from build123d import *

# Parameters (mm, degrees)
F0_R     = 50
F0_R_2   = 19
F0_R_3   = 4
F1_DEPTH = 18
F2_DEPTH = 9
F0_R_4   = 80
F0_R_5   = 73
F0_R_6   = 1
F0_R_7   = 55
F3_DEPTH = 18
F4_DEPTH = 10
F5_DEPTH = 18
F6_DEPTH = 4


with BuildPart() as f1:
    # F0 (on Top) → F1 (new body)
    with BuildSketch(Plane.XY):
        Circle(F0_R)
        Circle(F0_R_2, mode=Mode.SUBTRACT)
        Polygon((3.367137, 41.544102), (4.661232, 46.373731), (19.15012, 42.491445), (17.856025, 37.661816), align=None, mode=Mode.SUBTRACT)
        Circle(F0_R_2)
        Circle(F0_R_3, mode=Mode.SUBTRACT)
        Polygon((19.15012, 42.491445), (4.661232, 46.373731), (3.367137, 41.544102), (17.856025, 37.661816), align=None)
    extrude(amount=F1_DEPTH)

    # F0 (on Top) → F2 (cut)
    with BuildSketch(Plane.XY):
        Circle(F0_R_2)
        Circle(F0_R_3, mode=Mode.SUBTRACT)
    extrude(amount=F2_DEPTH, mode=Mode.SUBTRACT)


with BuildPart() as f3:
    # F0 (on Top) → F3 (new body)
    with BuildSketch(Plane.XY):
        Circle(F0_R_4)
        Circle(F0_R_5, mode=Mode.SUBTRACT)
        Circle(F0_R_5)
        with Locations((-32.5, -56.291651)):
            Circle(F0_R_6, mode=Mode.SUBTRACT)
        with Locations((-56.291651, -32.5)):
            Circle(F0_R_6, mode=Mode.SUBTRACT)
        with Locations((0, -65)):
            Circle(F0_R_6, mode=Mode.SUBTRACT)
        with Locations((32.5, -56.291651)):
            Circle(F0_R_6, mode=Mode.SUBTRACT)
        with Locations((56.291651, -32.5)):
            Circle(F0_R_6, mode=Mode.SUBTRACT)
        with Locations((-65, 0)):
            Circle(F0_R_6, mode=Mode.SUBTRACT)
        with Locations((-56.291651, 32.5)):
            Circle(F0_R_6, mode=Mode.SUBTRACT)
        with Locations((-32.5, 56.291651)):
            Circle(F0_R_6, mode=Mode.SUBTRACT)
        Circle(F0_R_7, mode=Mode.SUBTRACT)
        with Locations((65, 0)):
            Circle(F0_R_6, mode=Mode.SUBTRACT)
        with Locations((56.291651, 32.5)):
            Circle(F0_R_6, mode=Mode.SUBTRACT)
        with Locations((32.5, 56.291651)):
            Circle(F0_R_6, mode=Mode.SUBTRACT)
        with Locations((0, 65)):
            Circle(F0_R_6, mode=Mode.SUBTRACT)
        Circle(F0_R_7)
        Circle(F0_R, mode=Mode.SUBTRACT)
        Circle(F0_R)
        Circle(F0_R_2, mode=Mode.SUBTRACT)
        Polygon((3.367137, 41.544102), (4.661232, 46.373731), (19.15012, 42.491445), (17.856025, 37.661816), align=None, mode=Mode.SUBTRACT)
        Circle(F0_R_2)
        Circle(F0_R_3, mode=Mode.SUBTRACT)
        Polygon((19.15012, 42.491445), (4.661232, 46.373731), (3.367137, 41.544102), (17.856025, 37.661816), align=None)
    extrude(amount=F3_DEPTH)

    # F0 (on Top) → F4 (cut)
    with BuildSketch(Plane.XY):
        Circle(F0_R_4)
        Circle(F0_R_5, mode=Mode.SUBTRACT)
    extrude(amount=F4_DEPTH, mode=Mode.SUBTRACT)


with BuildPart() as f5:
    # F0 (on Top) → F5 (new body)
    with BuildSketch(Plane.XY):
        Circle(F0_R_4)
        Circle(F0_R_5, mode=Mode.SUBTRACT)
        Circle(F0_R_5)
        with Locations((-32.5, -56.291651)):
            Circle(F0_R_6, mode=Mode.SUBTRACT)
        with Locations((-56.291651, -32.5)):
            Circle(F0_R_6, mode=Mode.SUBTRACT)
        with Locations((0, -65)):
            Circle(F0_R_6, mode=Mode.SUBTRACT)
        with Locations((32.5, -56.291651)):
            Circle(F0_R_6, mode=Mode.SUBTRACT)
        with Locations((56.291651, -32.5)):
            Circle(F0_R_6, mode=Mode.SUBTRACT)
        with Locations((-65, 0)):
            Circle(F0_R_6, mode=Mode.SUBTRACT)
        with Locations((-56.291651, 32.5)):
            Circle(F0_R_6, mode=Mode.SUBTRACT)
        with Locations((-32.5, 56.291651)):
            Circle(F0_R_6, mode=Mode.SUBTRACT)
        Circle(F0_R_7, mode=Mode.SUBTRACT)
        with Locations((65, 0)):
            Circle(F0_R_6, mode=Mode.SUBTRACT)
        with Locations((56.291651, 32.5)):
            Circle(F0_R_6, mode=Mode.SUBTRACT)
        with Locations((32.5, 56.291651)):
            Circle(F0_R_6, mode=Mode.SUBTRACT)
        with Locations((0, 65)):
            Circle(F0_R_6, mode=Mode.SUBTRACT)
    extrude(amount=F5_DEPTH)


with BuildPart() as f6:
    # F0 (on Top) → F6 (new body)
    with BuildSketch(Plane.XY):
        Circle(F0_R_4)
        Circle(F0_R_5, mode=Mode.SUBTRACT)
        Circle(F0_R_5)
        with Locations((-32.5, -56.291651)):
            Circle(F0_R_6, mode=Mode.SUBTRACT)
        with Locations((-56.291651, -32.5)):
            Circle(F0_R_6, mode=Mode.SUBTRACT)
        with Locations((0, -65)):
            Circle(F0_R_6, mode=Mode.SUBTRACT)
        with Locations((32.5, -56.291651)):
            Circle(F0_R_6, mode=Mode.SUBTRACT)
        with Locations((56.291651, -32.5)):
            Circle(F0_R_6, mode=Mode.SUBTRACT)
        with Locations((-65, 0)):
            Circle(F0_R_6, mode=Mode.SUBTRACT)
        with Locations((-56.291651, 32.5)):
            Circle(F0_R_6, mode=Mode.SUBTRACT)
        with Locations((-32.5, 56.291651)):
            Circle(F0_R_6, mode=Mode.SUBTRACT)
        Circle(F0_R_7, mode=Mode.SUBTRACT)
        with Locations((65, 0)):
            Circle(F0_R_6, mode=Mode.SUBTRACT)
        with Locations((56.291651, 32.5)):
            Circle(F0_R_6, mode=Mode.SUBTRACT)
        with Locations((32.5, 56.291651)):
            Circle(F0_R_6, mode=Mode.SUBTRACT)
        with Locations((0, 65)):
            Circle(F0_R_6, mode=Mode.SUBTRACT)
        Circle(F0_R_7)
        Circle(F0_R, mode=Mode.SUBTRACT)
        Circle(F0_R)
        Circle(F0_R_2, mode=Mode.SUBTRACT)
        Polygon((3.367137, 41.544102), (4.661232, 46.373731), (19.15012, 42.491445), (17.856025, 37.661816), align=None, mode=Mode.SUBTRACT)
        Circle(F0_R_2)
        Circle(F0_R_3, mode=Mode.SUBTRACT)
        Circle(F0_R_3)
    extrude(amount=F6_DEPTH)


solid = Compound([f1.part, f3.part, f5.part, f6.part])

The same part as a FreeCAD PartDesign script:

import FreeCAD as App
import Part
import Sketcher

V = App.Vector
Q = App.Units.Quantity

doc = App.newDocument("Part")
body = doc.addObject("PartDesign::Body", "Body")

# Sketch on XY plane
sketch1 = body.newObject("Sketcher::SketchObject", "Sketch")
sketch1.AttachmentSupport = (doc.getObject("XY_Plane"), [""])
sketch1.MapMode = "FlatFace"
sketch1.addGeometry([
    Part.Circle(V(0, 0, 0), V(0, 0, 1), 50),
    Part.Circle(V(0, 0, 0), V(0, 0, 1), 4),
], False)
sketch1.addConstraint([
    Sketcher.Constraint("Coincident", 0, 3, -1, 1),
    Sketcher.Constraint("Coincident", 1, 3, -1, 1),
    Sketcher.Constraint("Diameter", 0, 100.0),
    Sketcher.Constraint("Diameter", 1, 8.0),
])
pad1 = body.newObject("PartDesign::Pad", "Pad")
pad1.Profile = sketch1
pad1.Length = 18

# Sketch on XY plane
sketch2 = body.newObject("Sketcher::SketchObject", "Sketch001")
sketch2.AttachmentSupport = (doc.getObject("XY_Plane"), [""])
sketch2.MapMode = "FlatFace"
sketch2.addGeometry([
    Part.Circle(V(0, 0, 0), V(0, 0, 1), 19),
    Part.Circle(V(0, 0, 0), V(0, 0, 1), 4),
], False)
sketch2.addConstraint([
    Sketcher.Constraint("Coincident", 0, 3, -1, 1),
    Sketcher.Constraint("Coincident", 1, 3, -1, 1),
    Sketcher.Constraint("Diameter", 0, 38.0),
    Sketcher.Constraint("Diameter", 1, 8.0),
])
pocket1 = body.newObject("PartDesign::Pocket", "Pocket")
pocket1.Profile = sketch2
pocket1.Length = 9
pocket1.Reversed = True
body2 = doc.addObject("PartDesign::Body", "Body001")

# Sketch on XY plane
sketch3 = body2.newObject("Sketcher::SketchObject", "Sketch002")
sketch3.AttachmentSupport = (doc.getObject("XY_Plane001"), [""])
sketch3.MapMode = "FlatFace"
sketch3.addGeometry([
    Part.Circle(V(0, 0, 0), V(0, 0, 1), 80),  # 0
    Part.Circle(V(-32.5, -56.3, 0), V(0, 0, 1), 1),  # 1
    Part.Circle(V(-56.3, -32.5, 0), V(0, 0, 1), 1),  # 2
    Part.Circle(V(0, -65, 0), V(0, 0, 1), 1),  # 3
    Part.Circle(V(32.5, -56.3, 0), V(0, 0, 1), 1),  # 4
    Part.Circle(V(56.3, -32.5, 0), V(0, 0, 1), 1),  # 5
    Part.Circle(V(-65, 0, 0), V(0, 0, 1), 1),  # 6
    Part.Circle(V(-56.3, 32.5, 0), V(0, 0, 1), 1),  # 7
    Part.Circle(V(-32.5, 56.3, 0), V(0, 0, 1), 1),  # 8
    Part.Circle(V(0, 0, 0), V(0, 0, 1), 4),  # 9
    Part.Circle(V(65, 0, 0), V(0, 0, 1), 1),  # 10
    Part.Circle(V(56.3, 32.5, 0), V(0, 0, 1), 1),  # 11
    Part.Circle(V(0, 65, 0), V(0, 0, 1), 1),  # 12
    Part.Circle(V(32.5, 56.3, 0), V(0, 0, 1), 1),  # 13
], False)
sketch3.addConstraint([
    Sketcher.Constraint("Coincident", 0, 3, -1, 1),
    Sketcher.Constraint("Coincident", 9, 3, -1, 1),
    Sketcher.Constraint("Equal", 1, 2),
    Sketcher.Constraint("Equal", 2, 3),
    Sketcher.Constraint("Equal", 3, 4),
    Sketcher.Constraint("Equal", 4, 5),
    Sketcher.Constraint("Equal", 5, 6),
    Sketcher.Constraint("Equal", 6, 7),
    Sketcher.Constraint("Equal", 7, 8),
    Sketcher.Constraint("Equal", 8, 10),
    Sketcher.Constraint("Equal", 10, 11),
    Sketcher.Constraint("Equal", 11, 12),
    Sketcher.Constraint("Equal", 12, 13),
    Sketcher.Constraint("Symmetric", 5, 3, 7, 3, -1, 1),
    Sketcher.Constraint("Symmetric", 4, 3, 8, 3, -1, 1),
    Sketcher.Constraint("Symmetric", 6, 3, 10, 3, -1, 1),
    Sketcher.Constraint("Symmetric", 2, 3, 11, 3, -1, 1),
    Sketcher.Constraint("Symmetric", 3, 3, 12, 3, -1, 1),
    Sketcher.Constraint("Symmetric", 1, 3, 13, 3, -1, 1),
    Sketcher.Constraint("Symmetric", 1, 3, 4, 3, -2),
    Sketcher.Constraint("Symmetric", 2, 3, 5, 3, -2),
    Sketcher.Constraint("PointOnObject", 3, 3, -2),
    Sketcher.Constraint("PointOnObject", 6, 3, -1),
    Sketcher.Constraint("Diameter", 0, 160.0),
    Sketcher.Constraint("Diameter", 1, 2.0),
    Sketcher.Constraint("Diameter", 9, 8.0),
    Sketcher.Constraint("DistanceY", 3, 3, -1, 1, 65.0),
    Sketcher.Constraint("DistanceX", 6, 3, -1, 1, 65.0),
    Sketcher.Constraint("DistanceX", 1, 3, 4, 3, 65.0),
    Sketcher.Constraint("DistanceY", 2, 3, 7, 3, 65.0),
    Sketcher.Constraint("DistanceY", 1, 3, -1, 1, 56.291651),
    Sketcher.Constraint("DistanceX", 2, 3, -1, 1, 56.291651),
])
pad2 = body2.newObject("PartDesign::Pad", "Pad001")
pad2.Profile = sketch3
pad2.Length = 18

# Sketch on XY plane
sketch4 = body2.newObject("Sketcher::SketchObject", "Sketch003")
sketch4.AttachmentSupport = (doc.getObject("XY_Plane001"), [""])
sketch4.MapMode = "FlatFace"
sketch4.addGeometry([
    Part.Circle(V(0, 0, 0), V(0, 0, 1), 80),
    Part.Circle(V(0, 0, 0), V(0, 0, 1), 73),
], False)
sketch4.addConstraint([
    Sketcher.Constraint("Coincident", 0, 3, -1, 1),
    Sketcher.Constraint("Coincident", 1, 3, -1, 1),
    Sketcher.Constraint("Diameter", 0, 160.0),
    Sketcher.Constraint("Diameter", 1, 146.0),
])
pocket2 = body2.newObject("PartDesign::Pocket", "Pocket001")
pocket2.Profile = sketch4
pocket2.Length = 10
pocket2.Reversed = True
body3 = doc.addObject("PartDesign::Body", "Body002")

# Sketch on XY plane
sketch5 = body3.newObject("Sketcher::SketchObject", "Sketch004")
sketch5.AttachmentSupport = (doc.getObject("XY_Plane002"), [""])
sketch5.MapMode = "FlatFace"
sketch5.addGeometry([
    Part.Circle(V(0, 0, 0), V(0, 0, 1), 80),  # 0
    Part.Circle(V(-32.5, -56.3, 0), V(0, 0, 1), 1),  # 1
    Part.Circle(V(-56.3, -32.5, 0), V(0, 0, 1), 1),  # 2
    Part.Circle(V(0, -65, 0), V(0, 0, 1), 1),  # 3
    Part.Circle(V(32.5, -56.3, 0), V(0, 0, 1), 1),  # 4
    Part.Circle(V(56.3, -32.5, 0), V(0, 0, 1), 1),  # 5
    Part.Circle(V(-65, 0, 0), V(0, 0, 1), 1),  # 6
    Part.Circle(V(-56.3, 32.5, 0), V(0, 0, 1), 1),  # 7
    Part.Circle(V(-32.5, 56.3, 0), V(0, 0, 1), 1),  # 8
    Part.Circle(V(0, 0, 0), V(0, 0, 1), 55),  # 9
    Part.Circle(V(65, 0, 0), V(0, 0, 1), 1),  # 10
    Part.Circle(V(56.3, 32.5, 0), V(0, 0, 1), 1),  # 11
    Part.Circle(V(0, 65, 0), V(0, 0, 1), 1),  # 12
    Part.Circle(V(32.5, 56.3, 0), V(0, 0, 1), 1),  # 13
], False)
sketch5.addConstraint([
    Sketcher.Constraint("Coincident", 0, 3, -1, 1),
    Sketcher.Constraint("Coincident", 9, 3, -1, 1),
    Sketcher.Constraint("Equal", 1, 2),
    Sketcher.Constraint("Equal", 2, 3),
    Sketcher.Constraint("Equal", 3, 4),
    Sketcher.Constraint("Equal", 4, 5),
    Sketcher.Constraint("Equal", 5, 6),
    Sketcher.Constraint("Equal", 6, 7),
    Sketcher.Constraint("Equal", 7, 8),
    Sketcher.Constraint("Equal", 8, 10),
    Sketcher.Constraint("Equal", 10, 11),
    Sketcher.Constraint("Equal", 11, 12),
    Sketcher.Constraint("Equal", 12, 13),
    Sketcher.Constraint("Symmetric", 5, 3, 7, 3, -1, 1),
    Sketcher.Constraint("Symmetric", 4, 3, 8, 3, -1, 1),
    Sketcher.Constraint("Symmetric", 6, 3, 10, 3, -1, 1),
    Sketcher.Constraint("Symmetric", 2, 3, 11, 3, -1, 1),
    Sketcher.Constraint("Symmetric", 3, 3, 12, 3, -1, 1),
    Sketcher.Constraint("Symmetric", 1, 3, 13, 3, -1, 1),
    Sketcher.Constraint("Symmetric", 1, 3, 4, 3, -2),
    Sketcher.Constraint("Symmetric", 2, 3, 5, 3, -2),
    Sketcher.Constraint("PointOnObject", 3, 3, -2),
    Sketcher.Constraint("PointOnObject", 6, 3, -1),
    Sketcher.Constraint("Diameter", 0, 160.0),
    Sketcher.Constraint("Diameter", 1, 2.0),
    Sketcher.Constraint("Diameter", 9, 110.0),
    Sketcher.Constraint("DistanceY", 3, 3, -1, 1, 65.0),
    Sketcher.Constraint("DistanceX", 6, 3, -1, 1, 65.0),
    Sketcher.Constraint("DistanceX", 1, 3, 4, 3, 65.0),
    Sketcher.Constraint("DistanceY", 2, 3, 7, 3, 65.0),
    Sketcher.Constraint("DistanceY", 1, 3, -1, 1, 56.291651),
    Sketcher.Constraint("DistanceX", 2, 3, -1, 1, 56.291651),
])
pad3 = body3.newObject("PartDesign::Pad", "Pad002")
pad3.Profile = sketch5
pad3.Length = 18
body4 = doc.addObject("PartDesign::Body", "Body003")

# Sketch on XY plane
sketch6 = body4.newObject("Sketcher::SketchObject", "Sketch005")
sketch6.AttachmentSupport = (doc.getObject("XY_Plane003"), [""])
sketch6.MapMode = "FlatFace"
sketch6.addGeometry([
    Part.Circle(V(0, 0, 0), V(0, 0, 1), 80),  # 0
    Part.Circle(V(-32.5, -56.3, 0), V(0, 0, 1), 1),  # 1
    Part.Circle(V(-56.3, -32.5, 0), V(0, 0, 1), 1),  # 2
    Part.Circle(V(0, -65, 0), V(0, 0, 1), 1),  # 3
    Part.Circle(V(32.5, -56.3, 0), V(0, 0, 1), 1),  # 4
    Part.Circle(V(56.3, -32.5, 0), V(0, 0, 1), 1),  # 5
    Part.Circle(V(-65, 0, 0), V(0, 0, 1), 1),  # 6
    Part.Circle(V(-56.3, 32.5, 0), V(0, 0, 1), 1),  # 7
    Part.Circle(V(-32.5, 56.3, 0), V(0, 0, 1), 1),  # 8
    Part.Circle(V(65, 0, 0), V(0, 0, 1), 1),  # 9
    Part.Circle(V(56.3, 32.5, 0), V(0, 0, 1), 1),  # 10
    Part.LineSegment(V(17.9, 37.7, 0), V(3.4, 41.5, 0)),  # 11
    Part.LineSegment(V(3.4, 41.5, 0), V(4.7, 46.4, 0)),  # 12
    Part.LineSegment(V(4.7, 46.4, 0), V(19.2, 42.5, 0)),  # 13
    Part.LineSegment(V(19.2, 42.5, 0), V(17.9, 37.7, 0)),  # 14
    Part.Circle(V(0, 65, 0), V(0, 0, 1), 1),  # 15
    Part.Circle(V(32.5, 56.3, 0), V(0, 0, 1), 1),  # 16
], False)
sketch6.addConstraint([
    Sketcher.Constraint("Coincident", 11, 2, 12, 1),
    Sketcher.Constraint("Coincident", 12, 2, 13, 1),
    Sketcher.Constraint("Coincident", 13, 2, 14, 1),
    Sketcher.Constraint("Coincident", 14, 2, 11, 1),
    Sketcher.Constraint("Coincident", 0, 3, -1, 1),
    Sketcher.Constraint("Equal", 1, 2),
    Sketcher.Constraint("Equal", 2, 3),
    Sketcher.Constraint("Equal", 3, 4),
    Sketcher.Constraint("Equal", 4, 5),
    Sketcher.Constraint("Equal", 5, 6),
    Sketcher.Constraint("Equal", 6, 7),
    Sketcher.Constraint("Equal", 7, 8),
    Sketcher.Constraint("Equal", 8, 9),
    Sketcher.Constraint("Equal", 9, 10),
    Sketcher.Constraint("Equal", 10, 15),
    Sketcher.Constraint("Equal", 15, 16),
    Sketcher.Constraint("Symmetric", 5, 3, 7, 3, -1, 1),
    Sketcher.Constraint("Symmetric", 4, 3, 8, 3, -1, 1),
    Sketcher.Constraint("Symmetric", 6, 3, 9, 3, -1, 1),
    Sketcher.Constraint("Symmetric", 2, 3, 10, 3, -1, 1),
    Sketcher.Constraint("Symmetric", 3, 3, 15, 3, -1, 1),
    Sketcher.Constraint("Symmetric", 1, 3, 16, 3, -1, 1),
    Sketcher.Constraint("Symmetric", 1, 3, 4, 3, -2),
    Sketcher.Constraint("Symmetric", 2, 3, 5, 3, -2),
    Sketcher.Constraint("PointOnObject", 3, 3, -2),
    Sketcher.Constraint("PointOnObject", 6, 3, -1),
    Sketcher.Constraint("Perpendicular", 11, 12),
    Sketcher.Constraint("Perpendicular", 12, 13),
    Sketcher.Constraint("Perpendicular", 13, 14),
    Sketcher.Constraint("Diameter", 0, 160.0),
    Sketcher.Constraint("Diameter", 1, 2.0),
    Sketcher.Constraint("Angle", 11, Q("164.999999 deg")),
    Sketcher.Constraint("Distance", 11, 15.000001),
    Sketcher.Constraint("Distance", 12, 5.0),
    Sketcher.Constraint("DistanceY", 3, 3, -1, 1, 65.0),
    Sketcher.Constraint("DistanceX", 6, 3, -1, 1, 65.0),
    Sketcher.Constraint("DistanceX", 1, 3, 4, 3, 65.0),
    Sketcher.Constraint("DistanceY", 2, 3, 7, 3, 65.0),
    Sketcher.Constraint("DistanceY", 1, 3, -1, 1, 56.291651),
    Sketcher.Constraint("DistanceX", 2, 3, -1, 1, 56.291651),
    Sketcher.Constraint("DistanceY", -1, 1, 12, 2, 46.373731),
    Sketcher.Constraint("DistanceX", -1, 1, 13, 2, 19.15012),
])
pad4 = body4.newObject("PartDesign::Pad", "Pad003")
pad4.Profile = sketch6
pad4.Length = 4

doc.recompute()
